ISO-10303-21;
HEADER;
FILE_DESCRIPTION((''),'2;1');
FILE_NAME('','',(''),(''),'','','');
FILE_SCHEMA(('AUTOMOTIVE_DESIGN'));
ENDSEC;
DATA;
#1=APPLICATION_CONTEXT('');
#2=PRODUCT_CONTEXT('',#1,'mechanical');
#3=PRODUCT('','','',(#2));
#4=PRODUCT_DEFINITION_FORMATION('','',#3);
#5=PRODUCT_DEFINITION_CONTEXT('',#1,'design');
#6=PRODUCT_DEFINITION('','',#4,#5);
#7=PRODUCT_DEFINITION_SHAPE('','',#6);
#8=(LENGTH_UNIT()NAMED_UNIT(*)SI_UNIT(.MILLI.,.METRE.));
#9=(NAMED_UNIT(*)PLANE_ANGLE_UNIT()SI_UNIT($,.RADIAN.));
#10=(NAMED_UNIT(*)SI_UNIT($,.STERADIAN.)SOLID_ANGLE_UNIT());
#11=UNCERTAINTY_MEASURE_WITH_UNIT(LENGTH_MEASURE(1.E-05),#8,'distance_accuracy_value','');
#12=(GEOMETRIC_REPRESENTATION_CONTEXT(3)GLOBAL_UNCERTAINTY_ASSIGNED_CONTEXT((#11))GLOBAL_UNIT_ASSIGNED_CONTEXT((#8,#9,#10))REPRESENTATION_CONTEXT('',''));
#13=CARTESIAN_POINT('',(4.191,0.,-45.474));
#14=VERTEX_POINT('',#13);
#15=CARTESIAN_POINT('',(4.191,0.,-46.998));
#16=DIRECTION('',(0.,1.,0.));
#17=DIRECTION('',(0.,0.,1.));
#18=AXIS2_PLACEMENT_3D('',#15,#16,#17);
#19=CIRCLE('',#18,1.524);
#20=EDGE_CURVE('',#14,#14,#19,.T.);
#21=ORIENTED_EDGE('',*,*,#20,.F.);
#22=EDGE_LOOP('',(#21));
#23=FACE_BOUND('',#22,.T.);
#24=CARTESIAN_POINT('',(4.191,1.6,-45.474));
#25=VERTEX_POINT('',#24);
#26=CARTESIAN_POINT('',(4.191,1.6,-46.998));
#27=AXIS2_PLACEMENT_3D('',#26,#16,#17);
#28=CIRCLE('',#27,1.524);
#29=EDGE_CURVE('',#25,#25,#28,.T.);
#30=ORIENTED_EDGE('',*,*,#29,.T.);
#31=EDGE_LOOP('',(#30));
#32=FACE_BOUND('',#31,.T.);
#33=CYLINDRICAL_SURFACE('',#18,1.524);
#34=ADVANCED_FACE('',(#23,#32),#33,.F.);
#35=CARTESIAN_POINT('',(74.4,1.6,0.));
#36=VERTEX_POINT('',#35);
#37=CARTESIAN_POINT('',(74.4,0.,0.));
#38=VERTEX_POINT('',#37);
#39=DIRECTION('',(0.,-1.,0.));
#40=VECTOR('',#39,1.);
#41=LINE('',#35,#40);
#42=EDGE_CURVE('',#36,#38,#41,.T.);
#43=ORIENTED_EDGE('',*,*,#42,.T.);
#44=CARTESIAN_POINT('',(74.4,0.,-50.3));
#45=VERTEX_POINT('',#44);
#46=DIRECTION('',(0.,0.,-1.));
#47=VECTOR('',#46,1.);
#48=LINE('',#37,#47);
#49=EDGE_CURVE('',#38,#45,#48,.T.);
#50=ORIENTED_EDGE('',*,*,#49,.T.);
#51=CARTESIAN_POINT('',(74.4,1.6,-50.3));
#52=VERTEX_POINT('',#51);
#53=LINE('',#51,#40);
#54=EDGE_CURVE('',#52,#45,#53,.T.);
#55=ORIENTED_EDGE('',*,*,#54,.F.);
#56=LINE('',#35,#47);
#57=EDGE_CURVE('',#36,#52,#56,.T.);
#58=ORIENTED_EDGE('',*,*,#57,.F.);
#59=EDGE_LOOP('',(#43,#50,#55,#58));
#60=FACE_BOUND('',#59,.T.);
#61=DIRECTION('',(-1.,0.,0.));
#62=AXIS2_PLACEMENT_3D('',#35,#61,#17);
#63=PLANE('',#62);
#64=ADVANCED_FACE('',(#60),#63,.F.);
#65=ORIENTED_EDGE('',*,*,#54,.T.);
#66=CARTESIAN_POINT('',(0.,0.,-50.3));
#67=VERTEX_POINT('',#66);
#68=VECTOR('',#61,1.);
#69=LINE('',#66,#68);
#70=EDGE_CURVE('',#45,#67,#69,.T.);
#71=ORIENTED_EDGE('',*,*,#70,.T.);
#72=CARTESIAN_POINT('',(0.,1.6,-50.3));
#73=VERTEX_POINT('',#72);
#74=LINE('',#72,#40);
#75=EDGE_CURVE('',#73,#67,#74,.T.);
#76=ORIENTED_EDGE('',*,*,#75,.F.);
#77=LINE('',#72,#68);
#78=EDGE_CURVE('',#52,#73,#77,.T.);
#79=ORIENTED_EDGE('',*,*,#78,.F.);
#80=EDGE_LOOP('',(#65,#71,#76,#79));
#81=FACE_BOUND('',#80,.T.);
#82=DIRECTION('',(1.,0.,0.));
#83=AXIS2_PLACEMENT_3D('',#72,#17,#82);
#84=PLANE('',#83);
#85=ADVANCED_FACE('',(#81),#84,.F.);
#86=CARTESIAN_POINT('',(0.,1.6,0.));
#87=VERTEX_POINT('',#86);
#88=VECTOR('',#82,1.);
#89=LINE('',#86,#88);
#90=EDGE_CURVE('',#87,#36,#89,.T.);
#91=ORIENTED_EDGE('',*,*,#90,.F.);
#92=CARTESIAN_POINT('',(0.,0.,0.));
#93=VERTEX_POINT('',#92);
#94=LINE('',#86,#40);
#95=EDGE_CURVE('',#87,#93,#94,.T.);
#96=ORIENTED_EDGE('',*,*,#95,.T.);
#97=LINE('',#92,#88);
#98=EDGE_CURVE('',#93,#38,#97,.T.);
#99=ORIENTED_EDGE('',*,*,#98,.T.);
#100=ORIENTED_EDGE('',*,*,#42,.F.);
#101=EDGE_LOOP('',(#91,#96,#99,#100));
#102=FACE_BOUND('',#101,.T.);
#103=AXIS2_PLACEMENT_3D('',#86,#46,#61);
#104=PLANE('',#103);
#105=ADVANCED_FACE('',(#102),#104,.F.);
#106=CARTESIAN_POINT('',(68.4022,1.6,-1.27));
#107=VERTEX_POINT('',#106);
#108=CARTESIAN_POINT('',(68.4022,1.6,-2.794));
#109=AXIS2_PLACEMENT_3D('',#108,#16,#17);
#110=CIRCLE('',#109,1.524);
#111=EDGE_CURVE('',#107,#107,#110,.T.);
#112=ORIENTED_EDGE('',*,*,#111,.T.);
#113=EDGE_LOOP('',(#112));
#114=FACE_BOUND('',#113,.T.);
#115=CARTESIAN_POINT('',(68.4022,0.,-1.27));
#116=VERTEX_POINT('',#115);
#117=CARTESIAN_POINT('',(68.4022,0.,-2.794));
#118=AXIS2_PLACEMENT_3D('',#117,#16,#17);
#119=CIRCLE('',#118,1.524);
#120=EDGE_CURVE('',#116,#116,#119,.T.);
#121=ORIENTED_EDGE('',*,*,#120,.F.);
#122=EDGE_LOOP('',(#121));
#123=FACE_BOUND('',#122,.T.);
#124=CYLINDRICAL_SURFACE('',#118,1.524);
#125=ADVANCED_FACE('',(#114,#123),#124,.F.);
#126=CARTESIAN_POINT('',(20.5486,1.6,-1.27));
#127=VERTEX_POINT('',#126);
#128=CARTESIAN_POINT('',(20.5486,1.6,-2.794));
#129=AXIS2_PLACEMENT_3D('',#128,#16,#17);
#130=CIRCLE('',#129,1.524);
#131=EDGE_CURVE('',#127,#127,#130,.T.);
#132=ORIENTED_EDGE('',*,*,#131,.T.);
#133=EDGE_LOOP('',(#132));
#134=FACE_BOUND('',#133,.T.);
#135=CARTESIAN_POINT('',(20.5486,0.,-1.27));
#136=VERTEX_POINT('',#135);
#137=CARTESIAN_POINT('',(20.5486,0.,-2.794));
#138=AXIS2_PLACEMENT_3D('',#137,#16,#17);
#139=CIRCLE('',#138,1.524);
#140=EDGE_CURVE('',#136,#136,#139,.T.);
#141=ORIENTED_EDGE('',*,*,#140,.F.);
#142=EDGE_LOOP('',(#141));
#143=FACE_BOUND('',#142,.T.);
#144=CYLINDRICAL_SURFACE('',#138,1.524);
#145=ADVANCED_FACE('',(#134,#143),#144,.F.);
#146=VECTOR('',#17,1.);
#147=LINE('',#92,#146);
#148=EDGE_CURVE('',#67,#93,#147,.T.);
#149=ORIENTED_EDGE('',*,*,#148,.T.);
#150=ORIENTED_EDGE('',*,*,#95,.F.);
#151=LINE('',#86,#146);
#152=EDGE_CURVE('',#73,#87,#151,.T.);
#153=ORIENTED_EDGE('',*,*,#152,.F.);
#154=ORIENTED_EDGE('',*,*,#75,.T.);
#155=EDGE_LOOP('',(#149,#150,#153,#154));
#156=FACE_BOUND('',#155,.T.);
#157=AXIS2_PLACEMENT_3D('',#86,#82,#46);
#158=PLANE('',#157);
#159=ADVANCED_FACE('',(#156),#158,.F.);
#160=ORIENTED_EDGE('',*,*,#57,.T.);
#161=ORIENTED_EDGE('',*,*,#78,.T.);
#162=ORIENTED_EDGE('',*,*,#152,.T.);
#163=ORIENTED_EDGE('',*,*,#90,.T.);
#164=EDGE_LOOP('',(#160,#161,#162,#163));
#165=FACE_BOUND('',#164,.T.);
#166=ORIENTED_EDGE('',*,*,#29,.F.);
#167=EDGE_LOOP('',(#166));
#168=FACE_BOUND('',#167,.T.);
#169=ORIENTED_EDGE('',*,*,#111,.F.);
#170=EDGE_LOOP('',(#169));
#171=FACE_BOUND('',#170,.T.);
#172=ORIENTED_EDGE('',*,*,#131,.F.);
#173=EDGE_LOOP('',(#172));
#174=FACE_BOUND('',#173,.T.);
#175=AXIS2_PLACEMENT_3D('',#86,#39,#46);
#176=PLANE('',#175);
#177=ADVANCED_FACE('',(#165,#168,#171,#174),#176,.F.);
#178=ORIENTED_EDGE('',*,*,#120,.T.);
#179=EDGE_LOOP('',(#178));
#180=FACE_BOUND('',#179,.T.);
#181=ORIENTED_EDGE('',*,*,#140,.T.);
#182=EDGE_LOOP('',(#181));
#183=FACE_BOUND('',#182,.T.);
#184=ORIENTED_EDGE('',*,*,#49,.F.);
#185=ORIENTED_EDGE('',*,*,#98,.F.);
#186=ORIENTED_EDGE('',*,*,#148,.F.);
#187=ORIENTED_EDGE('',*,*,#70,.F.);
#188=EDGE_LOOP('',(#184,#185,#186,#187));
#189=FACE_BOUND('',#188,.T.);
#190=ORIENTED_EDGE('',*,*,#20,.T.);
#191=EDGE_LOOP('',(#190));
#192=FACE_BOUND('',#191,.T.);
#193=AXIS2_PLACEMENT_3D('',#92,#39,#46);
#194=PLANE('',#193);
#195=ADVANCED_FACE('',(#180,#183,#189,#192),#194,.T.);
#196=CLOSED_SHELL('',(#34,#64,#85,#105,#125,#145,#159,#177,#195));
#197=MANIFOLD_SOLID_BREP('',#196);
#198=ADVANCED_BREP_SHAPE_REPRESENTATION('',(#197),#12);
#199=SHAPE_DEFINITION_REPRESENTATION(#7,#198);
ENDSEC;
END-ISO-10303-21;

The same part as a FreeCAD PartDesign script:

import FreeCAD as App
import Part
import Sketcher
Q = App.Units.Quantity

doc = App.newDocument("Part")
params = doc.addObject("Spreadsheet::Sheet", "Params")
for row, (alias, value) in enumerate([
    ("sketch1_width", "74.4 mm"),
    ("sketch1_height", "50.3 mm"),
    ("pad1_length", "1.6 mm"),
    ("pocket1_length", "1.6 mm"),
], start=1):
    params.set(f"A{row}", alias)
    params.set(f"B{row}", "=" + value)
    params.setAlias(f"B{row}", alias)

body = doc.addObject("PartDesign::Body", "Body")

sketch1 = body.newObject("Sketcher::SketchObject", "Sketch")
sketch1.AttachmentSupport = (doc.getObject("XZ_Plane"), [""])
sketch1.MapMode = "FlatFace"
sketch1.addGeometry([
    Part.LineSegment(App.Vector(0, -50, 0), App.Vector(0, 0, 0)),
    Part.LineSegment(App.Vector(0, 0, 0), App.Vector(74, 0, 0)),
    Part.LineSegment(App.Vector(74, 0, 0), App.Vector(74, -50, 0)),
    Part.LineSegment(App.Vector(74, -50, 0), App.Vector(0, -50, 0)),
], False)
sketch1.addConstraint([
    Sketcher.Constraint("Coincident", 0, 2, 1, 1),
    Sketcher.Constraint("Coincident", 1, 2, 2, 1),
    Sketcher.Constraint("Coincident", 2, 2, 3, 1),
    Sketcher.Constraint("Coincident", 3, 2, 0, 1),
    Sketcher.Constraint("Vertical", 0),
    Sketcher.Constraint("Horizontal", 1),
    Sketcher.Constraint("Vertical", 2),
    Sketcher.Constraint("Horizontal", 3),
    Sketcher.Constraint("Coincident", 0, 2, -1, 1),
    Sketcher.Constraint("DistanceX", 1, 1, 1, 2, Q("74.4 mm")),
    Sketcher.Constraint("DistanceY", 0, 1, 0, 2, Q("50.3 mm")),
])
sketch1.setExpression("Constraints[9]", "Params.sketch1_width")
sketch1.setExpression("Constraints[10]", "Params.sketch1_height")
pad1 = body.newObject("PartDesign::Pad", "Pad")
pad1.Profile = sketch1
pad1.setExpression("Length", "Params.pad1_length")
pad1.Reversed = True

sketch2 = body.newObject("Sketcher::SketchObject", "Sketch001")
sketch2.AttachmentSupport = (doc.getObject("XZ_Plane"), [""])
sketch2.MapMode = "FlatFace"
sketch2.AttachmentOffset = App.Placement(App.Vector(0, 0, -1.6), App.Rotation())
sketch2.addGeometry([
    Part.Circle(App.Vector(20.5, -2.8, 0), App.Vector(0, 0, 1), 1.5),
    Part.Circle(App.Vector(68.4, -2.8, 0), App.Vector(0, 0, 1), 1.5),
    Part.Circle(App.Vector(4.2, -47, 0), App.Vector(0, 0, 1), 1.5),
], False)
sketch2.addConstraint([
    Sketcher.Constraint("Equal", 0, 1),
    Sketcher.Constraint("Equal", 1, 2),
    Sketcher.Constraint("Horizontal", 0, 3, 1, 3),
    Sketcher.Constraint("Diameter", 0, Q("3.048 mm")),
    Sketcher.Constraint("DistanceY", 0, 3, -1, 1, Q("2.794 mm")),
    Sketcher.Constraint("DistanceX", -1, 1, 2, 3, Q("4.191 mm")),
    Sketcher.Constraint("DistanceY", 2, 3, -1, 1, Q("46.998 mm")),
    Sketcher.Constraint("DistanceX", -1, 1, 0, 3, Q("20.5486 mm")),
    Sketcher.Constraint("DistanceX", -1, 1, 1, 3, Q("68.4022 mm")),
])
pocket1 = body.newObject("PartDesign::Pocket", "Pocket")
pocket1.Profile = sketch2
pocket1.setExpression("Length", "Params.pocket1_length")
pocket1.Reversed = True

doc.recompute()
